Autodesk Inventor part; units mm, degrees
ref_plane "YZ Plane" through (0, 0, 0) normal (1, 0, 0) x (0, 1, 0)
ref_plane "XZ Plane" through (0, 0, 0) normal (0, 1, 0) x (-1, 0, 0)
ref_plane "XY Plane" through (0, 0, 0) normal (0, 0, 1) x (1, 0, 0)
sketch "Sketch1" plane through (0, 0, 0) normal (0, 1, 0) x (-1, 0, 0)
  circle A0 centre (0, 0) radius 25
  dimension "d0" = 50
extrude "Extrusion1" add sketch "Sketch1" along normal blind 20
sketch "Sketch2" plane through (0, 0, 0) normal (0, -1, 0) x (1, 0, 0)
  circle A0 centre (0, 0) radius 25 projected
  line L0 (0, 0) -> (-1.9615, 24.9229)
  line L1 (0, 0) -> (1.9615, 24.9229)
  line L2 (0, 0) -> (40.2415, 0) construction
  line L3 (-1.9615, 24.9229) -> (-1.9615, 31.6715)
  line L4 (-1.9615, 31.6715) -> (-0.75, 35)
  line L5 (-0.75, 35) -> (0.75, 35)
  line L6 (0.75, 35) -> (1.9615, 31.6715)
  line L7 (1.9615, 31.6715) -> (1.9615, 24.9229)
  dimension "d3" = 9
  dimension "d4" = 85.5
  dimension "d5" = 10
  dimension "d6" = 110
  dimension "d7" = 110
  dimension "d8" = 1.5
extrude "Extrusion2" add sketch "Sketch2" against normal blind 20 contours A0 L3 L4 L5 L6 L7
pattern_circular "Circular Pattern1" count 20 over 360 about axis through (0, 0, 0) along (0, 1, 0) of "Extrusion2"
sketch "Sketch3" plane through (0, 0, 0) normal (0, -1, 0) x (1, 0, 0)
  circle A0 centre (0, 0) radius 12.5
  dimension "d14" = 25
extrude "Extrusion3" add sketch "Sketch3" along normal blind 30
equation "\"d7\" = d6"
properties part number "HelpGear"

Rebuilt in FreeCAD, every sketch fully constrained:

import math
import FreeCAD as App
import Part
import Sketcher
from FreeCAD import Vector
Q = App.Units.Quantity

doc = App.newDocument("Part")
body = doc.addObject("PartDesign::Body", "Body")

# Sketch on XZ plane
sketch1 = doc.addObject("Sketcher::SketchObject", "Sketch")
body.addObject(sketch1)
sketch1.AttachmentSupport = (doc.XZ_Plane, [""])
sketch1.MapMode = "FlatFace"
sketch1.addGeometry(Part.Circle(Vector(0, 0, 0), Vector(0, 0, 1), 25), False)
sketch1.addConstraint(Sketcher.Constraint("Coincident", 0, 3, -1, 1))
sketch1.addConstraint(Sketcher.Constraint("Diameter", 0, Q("50 mm")))
pad1 = doc.addObject("PartDesign::Pad", "Pad")
body.addObject(pad1)
pad1.Profile = sketch1
pad1.Length = 20
pad1.Reversed = True

# Sketch on XZ plane
sketch2 = doc.addObject("Sketcher::SketchObject", "Sketch001")
body.addObject(sketch2)
sketch2.AttachmentSupport = (doc.XZ_Plane, [""])
sketch2.MapMode = "FlatFace"
sketch2.addGeometry(Part.ArcOfCircle(Part.Circle(Vector(0, 0, 0), Vector(0, 0, 1), 25), math.radians(85.5), math.radians(94.5)), False)
sketch2.addGeometry(Part.LineSegment(Vector(2, 24.9, 0), Vector(2, 31.7, 0)), False)
sketch2.addGeometry(Part.LineSegment(Vector(2, 31.7, 0), Vector(0.8, 35, 0)), False)
sketch2.addGeometry(Part.LineSegment(Vector(0.8, 35, 0), Vector(-0.8, 35, 0)), False)
sketch2.addGeometry(Part.LineSegment(Vector(-0.8, 35, 0), Vector(-2, 31.7, 0)), False)
sketch2.addGeometry(Part.LineSegment(Vector(-2, 31.7, 0), Vector(-2, 24.9, 0)), False)
sketch2.addConstraint(Sketcher.Constraint("Coincident", 0, 1, 1, 1))
sketch2.addConstraint(Sketcher.Constraint("Coincident", 1, 2, 2, 1))
sketch2.addConstraint(Sketcher.Constraint("Coincident", 2, 2, 3, 1))
sketch2.addConstraint(Sketcher.Constraint("Coincident", 3, 2, 4, 1))
sketch2.addConstraint(Sketcher.Constraint("Coincident", 4, 2, 5, 1))
sketch2.addConstraint(Sketcher.Constraint("Coincident", 5, 2, 0, 2))
sketch2.addConstraint(Sketcher.Constraint("Vertical", 1))
sketch2.addConstraint(Sketcher.Constraint("Horizontal", 3))
sketch2.addConstraint(Sketcher.Constraint("Vertical", 5))
sketch2.addConstraint(Sketcher.Constraint("Coincident", 0, 3, -1, 1))
sketch2.addConstraint(Sketcher.Constraint("Symmetric", 1, 2, 4, 2, -2))
sketch2.addConstraint(Sketcher.Constraint("Equal", 2, 4))
sketch2.addConstraint(Sketcher.Constraint("Angle", 2, Q("110.0004 deg")))
sketch2.addConstraint(Sketcher.Constraint("DistanceX", 3, 2, 3, 1, Q("1.5 mm")))
sketch2.addConstraint(Sketcher.Constraint("Radius", 0, Q("25 mm")))
sketch2.addConstraint(Sketcher.Constraint("DistanceY", -1, 1, 2, 2, Q("35 mm")))
sketch2.addConstraint(Sketcher.Constraint("DistanceY", 1, 1, 1, 2, Q("6.7486 mm")))
pad2 = doc.addObject("PartDesign::Pad", "Pad001")
body.addObject(pad2)
pad2.Profile = sketch2
pad2.Length = 20
pad2.Reversed = True
doc.recompute()

polarpattern = doc.addObject("PartDesign::PolarPattern", "PolarPattern")
body.addObject(polarpattern)
polarpattern.Originals = [pad2]
polarpattern.Axis = (doc.Y_Axis, [""])
polarpattern.Angle = 360
polarpattern.Occurrences = 20
body.Tip = polarpattern

# Sketch on XZ plane
sketch3 = doc.addObject("Sketcher::SketchObject", "Sketch002")
body.addObject(sketch3)
sketch3.AttachmentSupport = (doc.XZ_Plane, [""])
sketch3.MapMode = "FlatFace"
sketch3.addGeometry(Part.Circle(Vector(0, 0, 0), Vector(0, 0, 1), 12), False)
sketch3.addConstraint(Sketcher.Constraint("Coincident", 0, 3, -1, 1))
sketch3.addConstraint(Sketcher.Constraint("Diameter", 0, Q("25 mm")))
pad3 = doc.addObject("PartDesign::Pad", "Pad002")
body.addObject(pad3)
pad3.Profile = sketch3
pad3.Length = 30

doc.recompute()
